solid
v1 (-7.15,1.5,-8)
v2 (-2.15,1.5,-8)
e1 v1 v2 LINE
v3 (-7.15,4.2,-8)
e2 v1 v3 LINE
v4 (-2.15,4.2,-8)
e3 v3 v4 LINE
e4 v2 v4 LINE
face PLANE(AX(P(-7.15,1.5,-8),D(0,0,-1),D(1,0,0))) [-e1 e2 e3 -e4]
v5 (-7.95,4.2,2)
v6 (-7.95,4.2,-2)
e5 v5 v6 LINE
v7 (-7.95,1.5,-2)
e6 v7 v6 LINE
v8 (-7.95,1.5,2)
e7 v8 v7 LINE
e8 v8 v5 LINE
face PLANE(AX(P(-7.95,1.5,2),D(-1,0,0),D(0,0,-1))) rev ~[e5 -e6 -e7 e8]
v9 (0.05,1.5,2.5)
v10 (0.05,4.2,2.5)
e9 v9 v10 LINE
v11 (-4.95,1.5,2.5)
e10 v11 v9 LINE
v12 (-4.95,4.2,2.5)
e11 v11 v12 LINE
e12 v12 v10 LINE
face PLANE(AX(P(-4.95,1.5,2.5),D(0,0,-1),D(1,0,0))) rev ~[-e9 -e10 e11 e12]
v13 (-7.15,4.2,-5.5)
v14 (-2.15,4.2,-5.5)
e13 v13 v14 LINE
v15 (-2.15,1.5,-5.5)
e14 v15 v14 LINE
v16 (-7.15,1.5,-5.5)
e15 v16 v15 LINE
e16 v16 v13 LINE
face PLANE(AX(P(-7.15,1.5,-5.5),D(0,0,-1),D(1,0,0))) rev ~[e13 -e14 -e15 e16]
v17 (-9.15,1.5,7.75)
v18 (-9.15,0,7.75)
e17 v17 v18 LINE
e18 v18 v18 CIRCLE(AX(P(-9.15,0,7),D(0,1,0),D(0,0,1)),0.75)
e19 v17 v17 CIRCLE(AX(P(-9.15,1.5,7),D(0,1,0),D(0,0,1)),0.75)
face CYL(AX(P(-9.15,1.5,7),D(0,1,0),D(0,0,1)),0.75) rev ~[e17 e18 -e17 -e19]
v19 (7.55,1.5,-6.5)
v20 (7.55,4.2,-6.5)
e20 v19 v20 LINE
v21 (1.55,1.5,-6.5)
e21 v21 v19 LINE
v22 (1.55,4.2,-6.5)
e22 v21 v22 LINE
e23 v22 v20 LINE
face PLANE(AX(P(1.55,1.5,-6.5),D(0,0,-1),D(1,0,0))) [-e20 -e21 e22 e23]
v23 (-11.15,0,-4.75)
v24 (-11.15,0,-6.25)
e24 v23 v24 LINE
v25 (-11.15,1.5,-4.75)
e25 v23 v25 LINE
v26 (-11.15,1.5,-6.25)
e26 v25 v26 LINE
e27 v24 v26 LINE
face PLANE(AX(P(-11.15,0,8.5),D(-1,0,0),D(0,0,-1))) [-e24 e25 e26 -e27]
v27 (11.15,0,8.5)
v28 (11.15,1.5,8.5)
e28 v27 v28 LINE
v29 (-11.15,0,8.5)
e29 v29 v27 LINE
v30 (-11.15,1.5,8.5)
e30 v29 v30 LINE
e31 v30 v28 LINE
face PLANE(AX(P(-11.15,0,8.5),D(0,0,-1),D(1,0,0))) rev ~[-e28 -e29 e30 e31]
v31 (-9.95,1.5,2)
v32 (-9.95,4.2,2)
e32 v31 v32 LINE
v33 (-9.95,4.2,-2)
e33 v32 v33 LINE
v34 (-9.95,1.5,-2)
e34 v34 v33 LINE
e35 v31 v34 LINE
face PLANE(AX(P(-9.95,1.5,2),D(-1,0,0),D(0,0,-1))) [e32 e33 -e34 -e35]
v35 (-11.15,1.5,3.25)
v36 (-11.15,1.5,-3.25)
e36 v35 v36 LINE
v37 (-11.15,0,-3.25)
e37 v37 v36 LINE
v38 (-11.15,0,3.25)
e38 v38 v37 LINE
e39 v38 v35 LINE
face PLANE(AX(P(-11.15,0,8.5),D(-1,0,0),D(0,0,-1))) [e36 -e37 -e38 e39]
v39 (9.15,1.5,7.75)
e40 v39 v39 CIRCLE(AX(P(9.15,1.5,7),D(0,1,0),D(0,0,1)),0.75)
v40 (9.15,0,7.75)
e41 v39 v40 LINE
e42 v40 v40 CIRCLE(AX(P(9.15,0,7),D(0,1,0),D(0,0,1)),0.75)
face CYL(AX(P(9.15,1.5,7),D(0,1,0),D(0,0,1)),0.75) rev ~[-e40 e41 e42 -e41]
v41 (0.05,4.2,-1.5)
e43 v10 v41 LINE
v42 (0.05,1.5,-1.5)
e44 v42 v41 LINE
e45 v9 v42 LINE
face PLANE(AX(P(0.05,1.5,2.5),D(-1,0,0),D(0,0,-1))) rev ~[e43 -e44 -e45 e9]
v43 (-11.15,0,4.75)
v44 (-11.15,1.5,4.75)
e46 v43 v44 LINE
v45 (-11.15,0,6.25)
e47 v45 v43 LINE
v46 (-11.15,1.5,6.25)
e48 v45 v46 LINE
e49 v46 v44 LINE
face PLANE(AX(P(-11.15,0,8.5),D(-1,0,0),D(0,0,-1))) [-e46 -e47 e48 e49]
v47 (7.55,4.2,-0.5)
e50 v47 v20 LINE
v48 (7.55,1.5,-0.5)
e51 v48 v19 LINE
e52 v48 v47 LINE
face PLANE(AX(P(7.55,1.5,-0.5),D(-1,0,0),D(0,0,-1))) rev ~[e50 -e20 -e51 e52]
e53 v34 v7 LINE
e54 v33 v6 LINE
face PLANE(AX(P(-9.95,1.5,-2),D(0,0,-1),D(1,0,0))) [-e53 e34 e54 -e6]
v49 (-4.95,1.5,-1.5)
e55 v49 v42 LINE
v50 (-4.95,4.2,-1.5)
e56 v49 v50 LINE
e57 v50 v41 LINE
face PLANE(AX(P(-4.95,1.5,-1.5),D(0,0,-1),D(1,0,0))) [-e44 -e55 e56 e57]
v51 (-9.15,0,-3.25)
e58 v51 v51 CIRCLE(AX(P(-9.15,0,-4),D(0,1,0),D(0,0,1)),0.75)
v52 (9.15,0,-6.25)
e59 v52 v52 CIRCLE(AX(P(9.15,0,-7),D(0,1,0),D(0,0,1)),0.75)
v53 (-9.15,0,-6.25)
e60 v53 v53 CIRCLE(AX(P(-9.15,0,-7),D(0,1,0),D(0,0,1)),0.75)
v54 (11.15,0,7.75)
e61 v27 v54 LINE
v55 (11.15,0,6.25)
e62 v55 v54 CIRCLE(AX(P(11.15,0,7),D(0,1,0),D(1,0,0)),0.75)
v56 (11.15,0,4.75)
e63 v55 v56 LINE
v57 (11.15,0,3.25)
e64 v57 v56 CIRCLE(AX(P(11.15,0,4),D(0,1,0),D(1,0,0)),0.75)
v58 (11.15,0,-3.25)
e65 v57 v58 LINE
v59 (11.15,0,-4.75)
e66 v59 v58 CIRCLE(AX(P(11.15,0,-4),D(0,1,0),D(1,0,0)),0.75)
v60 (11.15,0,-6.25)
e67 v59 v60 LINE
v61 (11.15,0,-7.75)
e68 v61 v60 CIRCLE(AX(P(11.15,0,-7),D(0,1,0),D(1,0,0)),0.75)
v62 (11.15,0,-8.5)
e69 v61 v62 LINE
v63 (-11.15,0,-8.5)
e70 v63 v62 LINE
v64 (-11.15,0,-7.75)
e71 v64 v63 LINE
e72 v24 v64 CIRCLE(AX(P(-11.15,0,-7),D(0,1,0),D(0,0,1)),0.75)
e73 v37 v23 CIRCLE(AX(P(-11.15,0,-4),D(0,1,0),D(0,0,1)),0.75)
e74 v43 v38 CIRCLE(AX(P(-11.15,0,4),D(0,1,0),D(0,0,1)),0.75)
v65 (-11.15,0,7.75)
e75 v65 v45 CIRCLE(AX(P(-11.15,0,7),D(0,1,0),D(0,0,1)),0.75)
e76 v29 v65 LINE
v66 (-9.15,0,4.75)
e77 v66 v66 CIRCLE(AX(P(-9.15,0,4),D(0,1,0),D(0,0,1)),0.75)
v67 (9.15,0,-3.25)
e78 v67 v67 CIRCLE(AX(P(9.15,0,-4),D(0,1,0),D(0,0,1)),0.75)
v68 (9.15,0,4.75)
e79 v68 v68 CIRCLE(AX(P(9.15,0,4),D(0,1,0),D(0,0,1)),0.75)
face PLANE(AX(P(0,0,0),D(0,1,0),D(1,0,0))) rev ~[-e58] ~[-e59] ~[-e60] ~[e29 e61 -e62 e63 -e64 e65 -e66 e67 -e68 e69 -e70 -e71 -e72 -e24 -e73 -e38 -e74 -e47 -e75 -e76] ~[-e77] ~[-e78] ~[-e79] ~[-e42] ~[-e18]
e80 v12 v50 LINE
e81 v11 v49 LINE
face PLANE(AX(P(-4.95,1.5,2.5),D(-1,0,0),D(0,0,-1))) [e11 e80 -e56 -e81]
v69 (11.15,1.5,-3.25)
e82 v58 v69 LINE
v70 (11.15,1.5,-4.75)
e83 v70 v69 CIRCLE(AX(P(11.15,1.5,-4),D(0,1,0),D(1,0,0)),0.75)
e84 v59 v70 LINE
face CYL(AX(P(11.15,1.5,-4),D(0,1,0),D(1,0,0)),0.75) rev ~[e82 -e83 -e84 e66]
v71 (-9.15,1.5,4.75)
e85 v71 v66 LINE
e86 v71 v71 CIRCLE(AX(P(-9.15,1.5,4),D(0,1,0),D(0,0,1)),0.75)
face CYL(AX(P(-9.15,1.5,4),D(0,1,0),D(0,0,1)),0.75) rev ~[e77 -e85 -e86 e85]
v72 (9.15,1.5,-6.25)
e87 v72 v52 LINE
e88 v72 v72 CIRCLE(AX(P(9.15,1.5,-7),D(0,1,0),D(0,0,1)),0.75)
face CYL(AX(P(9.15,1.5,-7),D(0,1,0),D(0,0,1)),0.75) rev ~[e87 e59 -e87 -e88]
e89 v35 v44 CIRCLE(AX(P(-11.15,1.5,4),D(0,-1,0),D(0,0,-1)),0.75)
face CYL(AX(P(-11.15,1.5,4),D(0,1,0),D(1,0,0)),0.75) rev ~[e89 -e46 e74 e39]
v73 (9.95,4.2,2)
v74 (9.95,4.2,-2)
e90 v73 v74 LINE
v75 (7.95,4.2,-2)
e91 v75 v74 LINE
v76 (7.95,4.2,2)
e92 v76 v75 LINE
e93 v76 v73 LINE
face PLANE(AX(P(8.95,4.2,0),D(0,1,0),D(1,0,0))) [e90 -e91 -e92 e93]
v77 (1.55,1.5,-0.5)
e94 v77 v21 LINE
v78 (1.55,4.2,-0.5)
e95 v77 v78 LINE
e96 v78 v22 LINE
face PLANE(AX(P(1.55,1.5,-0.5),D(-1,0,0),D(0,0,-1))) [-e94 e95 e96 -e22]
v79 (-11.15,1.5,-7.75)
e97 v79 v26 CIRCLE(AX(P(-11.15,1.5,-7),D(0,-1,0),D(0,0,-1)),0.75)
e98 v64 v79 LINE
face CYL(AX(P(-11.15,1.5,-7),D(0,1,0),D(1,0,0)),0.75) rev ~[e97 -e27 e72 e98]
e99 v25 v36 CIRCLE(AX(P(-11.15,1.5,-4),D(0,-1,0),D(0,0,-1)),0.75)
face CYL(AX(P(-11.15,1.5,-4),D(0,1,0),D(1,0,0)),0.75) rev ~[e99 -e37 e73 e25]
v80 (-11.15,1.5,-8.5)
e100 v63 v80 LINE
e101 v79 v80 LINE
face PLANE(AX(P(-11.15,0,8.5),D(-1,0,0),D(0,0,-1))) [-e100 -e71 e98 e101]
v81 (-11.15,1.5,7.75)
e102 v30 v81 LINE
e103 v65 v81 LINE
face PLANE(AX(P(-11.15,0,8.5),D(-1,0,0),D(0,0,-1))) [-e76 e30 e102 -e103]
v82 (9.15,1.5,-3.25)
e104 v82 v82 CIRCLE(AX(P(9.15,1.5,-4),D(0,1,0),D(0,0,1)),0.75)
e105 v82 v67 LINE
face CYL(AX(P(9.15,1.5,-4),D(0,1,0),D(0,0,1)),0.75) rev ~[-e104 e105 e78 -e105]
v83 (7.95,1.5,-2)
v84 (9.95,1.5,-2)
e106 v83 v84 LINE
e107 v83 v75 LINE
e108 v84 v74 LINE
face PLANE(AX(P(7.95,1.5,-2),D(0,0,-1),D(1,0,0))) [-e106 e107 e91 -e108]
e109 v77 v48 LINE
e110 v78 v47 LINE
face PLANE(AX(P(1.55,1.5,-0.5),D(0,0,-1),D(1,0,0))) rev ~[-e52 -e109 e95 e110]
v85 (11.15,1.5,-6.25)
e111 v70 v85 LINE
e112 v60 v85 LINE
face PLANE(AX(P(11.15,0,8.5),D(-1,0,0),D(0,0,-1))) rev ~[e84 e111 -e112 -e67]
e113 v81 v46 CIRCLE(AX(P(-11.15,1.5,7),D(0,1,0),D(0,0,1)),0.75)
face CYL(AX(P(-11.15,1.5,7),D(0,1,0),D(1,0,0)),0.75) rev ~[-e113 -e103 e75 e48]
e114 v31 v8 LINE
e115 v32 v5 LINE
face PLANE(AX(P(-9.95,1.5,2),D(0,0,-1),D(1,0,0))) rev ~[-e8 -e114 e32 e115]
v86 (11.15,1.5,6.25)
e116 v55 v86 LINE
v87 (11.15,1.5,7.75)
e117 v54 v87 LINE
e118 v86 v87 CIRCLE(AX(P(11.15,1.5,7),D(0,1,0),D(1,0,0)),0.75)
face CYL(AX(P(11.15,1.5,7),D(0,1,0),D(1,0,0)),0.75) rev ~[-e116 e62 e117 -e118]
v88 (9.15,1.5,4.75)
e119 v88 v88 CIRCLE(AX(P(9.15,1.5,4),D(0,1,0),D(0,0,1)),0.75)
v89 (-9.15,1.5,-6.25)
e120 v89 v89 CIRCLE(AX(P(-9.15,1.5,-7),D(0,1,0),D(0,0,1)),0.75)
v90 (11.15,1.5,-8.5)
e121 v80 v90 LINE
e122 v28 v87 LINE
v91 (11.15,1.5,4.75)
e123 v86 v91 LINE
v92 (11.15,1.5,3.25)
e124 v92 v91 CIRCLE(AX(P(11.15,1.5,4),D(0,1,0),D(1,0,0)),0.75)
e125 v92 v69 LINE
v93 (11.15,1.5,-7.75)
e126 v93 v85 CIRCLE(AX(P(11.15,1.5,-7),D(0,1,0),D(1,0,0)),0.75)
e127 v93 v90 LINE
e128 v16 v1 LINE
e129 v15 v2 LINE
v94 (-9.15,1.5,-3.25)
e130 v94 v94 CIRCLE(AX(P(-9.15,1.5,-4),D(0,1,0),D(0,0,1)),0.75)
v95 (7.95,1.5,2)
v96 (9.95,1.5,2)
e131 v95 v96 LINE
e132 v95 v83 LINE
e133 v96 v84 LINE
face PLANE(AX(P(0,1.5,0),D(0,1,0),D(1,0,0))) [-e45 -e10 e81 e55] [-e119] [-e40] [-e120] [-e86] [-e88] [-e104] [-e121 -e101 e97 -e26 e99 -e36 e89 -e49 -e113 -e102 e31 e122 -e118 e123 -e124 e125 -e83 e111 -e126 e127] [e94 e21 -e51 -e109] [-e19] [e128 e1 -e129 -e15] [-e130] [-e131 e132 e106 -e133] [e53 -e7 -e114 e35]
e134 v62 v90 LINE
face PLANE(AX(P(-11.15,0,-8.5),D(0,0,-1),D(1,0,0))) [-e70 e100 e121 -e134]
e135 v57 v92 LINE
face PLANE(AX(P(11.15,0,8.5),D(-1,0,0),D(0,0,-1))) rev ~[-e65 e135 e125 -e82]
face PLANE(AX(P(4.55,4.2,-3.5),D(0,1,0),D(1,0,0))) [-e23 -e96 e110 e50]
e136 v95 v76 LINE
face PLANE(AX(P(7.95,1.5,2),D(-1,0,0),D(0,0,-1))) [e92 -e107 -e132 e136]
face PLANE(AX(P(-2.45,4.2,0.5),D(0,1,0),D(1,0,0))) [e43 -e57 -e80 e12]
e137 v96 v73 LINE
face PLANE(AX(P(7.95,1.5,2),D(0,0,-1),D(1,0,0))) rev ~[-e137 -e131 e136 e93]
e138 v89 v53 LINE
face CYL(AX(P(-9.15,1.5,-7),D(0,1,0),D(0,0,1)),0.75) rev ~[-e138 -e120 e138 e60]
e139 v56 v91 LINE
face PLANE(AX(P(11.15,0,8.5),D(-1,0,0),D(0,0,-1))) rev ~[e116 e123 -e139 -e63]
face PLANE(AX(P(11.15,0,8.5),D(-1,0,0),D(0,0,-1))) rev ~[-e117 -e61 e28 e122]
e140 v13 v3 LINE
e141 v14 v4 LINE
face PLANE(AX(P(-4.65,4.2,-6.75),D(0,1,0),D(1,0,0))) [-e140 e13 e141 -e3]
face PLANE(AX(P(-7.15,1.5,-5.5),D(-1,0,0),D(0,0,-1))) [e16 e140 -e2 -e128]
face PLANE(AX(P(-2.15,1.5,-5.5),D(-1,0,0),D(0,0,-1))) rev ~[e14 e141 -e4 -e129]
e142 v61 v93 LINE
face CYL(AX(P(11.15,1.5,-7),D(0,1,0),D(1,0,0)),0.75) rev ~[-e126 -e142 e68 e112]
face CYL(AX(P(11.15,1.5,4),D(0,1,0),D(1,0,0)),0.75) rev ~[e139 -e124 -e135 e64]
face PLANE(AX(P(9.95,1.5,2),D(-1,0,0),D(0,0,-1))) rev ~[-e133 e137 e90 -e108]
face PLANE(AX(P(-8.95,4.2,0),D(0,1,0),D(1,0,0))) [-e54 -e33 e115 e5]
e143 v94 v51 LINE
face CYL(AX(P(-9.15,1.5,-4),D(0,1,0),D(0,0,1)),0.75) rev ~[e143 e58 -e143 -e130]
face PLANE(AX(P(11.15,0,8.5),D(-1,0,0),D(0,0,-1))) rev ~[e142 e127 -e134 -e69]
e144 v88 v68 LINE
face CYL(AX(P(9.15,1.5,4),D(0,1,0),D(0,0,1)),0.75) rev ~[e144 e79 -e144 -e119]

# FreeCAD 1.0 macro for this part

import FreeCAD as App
import Part
import Sketcher
Q = App.Units.Quantity


def add_polygon(sketch, points):
    """Adds a closed chain of lines whose ends are joined by coincident constraints."""
    first, n = sketch.GeometryCount, len(points)
    for a, b in zip(points, points[1:] + points[:1]):
        sketch.addGeometry(Part.LineSegment(App.Vector(*a, 0), App.Vector(*b, 0)), False)
    for i in range(n):
        sketch.addConstraint(Sketcher.Constraint("Coincident", first + i, 2, first + (i + 1) % n, 1))

doc = App.newDocument("Part")
params = doc.addObject("Spreadsheet::Sheet", "Params")
for row, (alias, value) in enumerate([
    ("sketch1_height", "17 mm"),
    ("sketch1_width", "22.3 mm"),
    ("pad1_length", "1.5 mm"),
    ("sketch2_width", "6 mm"),
    ("sketch2_width2", "5 mm"),
    ("sketch2_width3", "2 mm"),
    ("sketch2_height", "4 mm"),
    ("sketch2_height2", "2.5 mm"),
    ("pad2_length", "2.7 mm"),
    ("sketch3_diameter", "1.5 mm"),
], start=1):
    params.set(f"A{row}", alias)
    params.set(f"B{row}", "=" + value)
    params.setAlias(f"B{row}", alias)

body = doc.addObject("PartDesign::Body", "Body")

sketch1 = doc.addObject("Sketcher::SketchObject", "Sketch")
body.addObject(sketch1)
sketch1.AttachmentSupport = (doc.XZ_Plane, [""])
sketch1.MapMode = "FlatFace"
add_polygon(sketch1, [(-11.15, -8.5), (-11.15, 8.5), (11.15, 8.5), (11.15, -8.5)])
sketch1.addConstraint([
    Sketcher.Constraint("Vertical", 0),
    Sketcher.Constraint("Horizontal", 1),
    Sketcher.Constraint("Vertical", 2),
    Sketcher.Constraint("Horizontal", 3),
    Sketcher.Constraint("Symmetric", 0, 2, 2, 2, -1, 1),
    Sketcher.Constraint("DistanceY", 0, 1, 0, 2, Q("17 mm")),
    Sketcher.Constraint("DistanceX", 1, 1, 1, 2, Q("22.3 mm")),
])
sketch1.setExpression("Constraints[9]", "Params.sketch1_height")
sketch1.setExpression("Constraints[10]", "Params.sketch1_width")
pad1 = doc.addObject("PartDesign::Pad", "Pad")
body.addObject(pad1)
pad1.Profile = sketch1
pad1.setExpression("Length", "Params.pad1_length")
pad1.Reversed = True

sketch2 = doc.addObject("Sketcher::SketchObject", "Sketch001")
body.addObject(sketch2)
sketch2.AttachmentSupport = (doc.XZ_Plane, [""])
sketch2.MapMode = "FlatFace"
sketch2.AttachmentOffset = App.Placement(App.Vector(0, 0, -1.5), App.Rotation())
add_polygon(sketch2, [(1.55, -6.5), (1.55, -0.5), (7.55, -0.5), (7.55, -6.5)])
add_polygon(sketch2, [(-7.15, -8), (-7.15, -5.5), (-2.15, -5.5), (-2.15, -8)])
add_polygon(sketch2, [(-9.95, -2), (-9.95, 2), (-7.95, 2), (-7.95, -2)])
add_polygon(sketch2, [(7.95, -2), (7.95, 2), (9.95, 2), (9.95, -2)])
add_polygon(sketch2, [(-4.95, -1.5), (-4.95, 2.5), (0.05, 2.5), (0.05, -1.5)])
sketch2.addConstraint([
    Sketcher.Constraint("Vertical", 0),
    Sketcher.Constraint("Horizontal", 1),
    Sketcher.Constraint("Vertical", 2),
    Sketcher.Constraint("Horizontal", 3),
    Sketcher.Constraint("Vertical", 4),
    Sketcher.Constraint("Horizontal", 5),
    Sketcher.Constraint("Vertical", 6),
    Sketcher.Constraint("Horizontal", 7),
    Sketcher.Constraint("Vertical", 8),
    Sketcher.Constraint("Horizontal", 9),
    Sketcher.Constraint("Vertical", 10),
    Sketcher.Constraint("Horizontal", 11),
    Sketcher.Constraint("Vertical", 12),
    Sketcher.Constraint("Horizontal", 13),
    Sketcher.Constraint("Vertical", 14),
    Sketcher.Constraint("Horizontal", 15),
    Sketcher.Constraint("Vertical", 16),
    Sketcher.Constraint("Horizontal", 17),
    Sketcher.Constraint("Vertical", 18),
    Sketcher.Constraint("Horizontal", 19),
    Sketcher.Constraint("Symmetric", 10, 2, 12, 2, -1, 1),
    Sketcher.Constraint("Symmetric", 8, 2, 14, 2, -1, 1),
    Sketcher.Constraint("Horizontal", 9, 2, 12, 2),
    Sketcher.Constraint("Equal", 7, 17),
    Sketcher.Constraint("Equal", 3, 0),
    Sketcher.Constraint("Equal", 14, 16),
    Sketcher.Constraint("DistanceX", 1, 1, 1, 2, Q("6 mm")),
    Sketcher.Constraint("DistanceX", 5, 1, 5, 2, Q("5 mm")),
    Sketcher.Constraint("DistanceX", 9, 1, 9, 2, Q("2 mm")),
    Sketcher.Constraint("DistanceY", 8, 1, 8, 2, Q("4 mm")),
    Sketcher.Constraint("DistanceY", 4, 1, 4, 2, Q("2.5 mm")),
    Sketcher.Constraint("DistanceY", 6, 2, -1, 1, Q("8 mm")),
    Sketcher.Constraint("DistanceY", 3, 2, 4, 2, Q("1 mm")),
    Sketcher.Constraint("DistanceX", 9, 2, 16, 2, Q("3 mm")),
    Sketcher.Constraint("DistanceY", 0, 2, 16, 2, Q("3 mm")),
    Sketcher.Constraint("DistanceX", 4, 2, 3, 2, Q("8.7 mm")),
    Sketcher.Constraint("DistanceX", 8, 2, 4, 2, Q("2.8 mm")),
    Sketcher.Constraint("DistanceX", 1, 2, 12, 2, Q("0.4 mm")),
])
sketch2.setExpression("Constraints[46]", "Params.sketch2_width")
sketch2.setExpression("Constraints[47]", "Params.sketch2_width2")
sketch2.setExpression("Constraints[48]", "Params.sketch2_width3")
sketch2.setExpression("Constraints[49]", "Params.sketch2_height")
sketch2.setExpression("Constraints[50]", "Params.sketch2_height2")
pad2 = doc.addObject("PartDesign::Pad", "Pad001")
body.addObject(pad2)
pad2.Profile = sketch2
pad2.setExpression("Length", "Params.pad2_length")
pad2.Reversed = True

sketch3 = doc.addObject("Sketcher::SketchObject", "Sketch002")
body.addObject(sketch3)
sketch3.AttachmentSupport = (doc.XZ_Plane, [""])
sketch3.MapMode = "FlatFace"
sketch3.AttachmentOffset = App.Placement(App.Vector(0, 0, -1.5), App.Rotation())
sketch3.addGeometry([
    Part.Circle(App.Vector(-11.15, -7, 0), App.Vector(0, 0, 1), 0.75),
    Part.Circle(App.Vector(-11.15, -4, 0), App.Vector(0, 0, 1), 0.75),
    Part.Circle(App.Vector(-9.15, -7, 0), App.Vector(0, 0, 1), 0.75),
    Part.Circle(App.Vector(-9.15, -4, 0), App.Vector(0, 0, 1), 0.75),
    Part.Circle(App.Vector(9.15, -7, 0), App.Vector(0, 0, 1), 0.75),
    Part.Circle(App.Vector(11.15, -7, 0), App.Vector(0, 0, 1), 0.75),
    Part.Circle(App.Vector(9.15, -4, 0), App.Vector(0, 0, 1), 0.75),
    Part.Circle(App.Vector(11.15, -4, 0), App.Vector(0, 0, 1), 0.75),
    Part.Circle(App.Vector(-11.15, 4, 0), App.Vector(0, 0, 1), 0.75),
    Part.Circle(App.Vector(-9.15, 4, 0), App.Vector(0, 0, 1), 0.75),
    Part.Circle(App.Vector(-9.15, 7, 0), App.Vector(0, 0, 1), 0.75),
    Part.Circle(App.Vector(-11.15, 7, 0), App.Vector(0, 0, 1), 0.75),
    Part.Circle(App.Vector(11.15, 4, 0), App.Vector(0, 0, 1), 0.75),
    Part.Circle(App.Vector(9.15, 4, 0), App.Vector(0, 0, 1), 0.75),
    Part.Circle(App.Vector(9.15, 7, 0), App.Vector(0, 0, 1), 0.75),
    Part.Circle(App.Vector(11.15, 7, 0), App.Vector(0, 0, 1), 0.75),
], False)
sketch3.addConstraint([
    Sketcher.Constraint("Equal", 0, 1),
    Sketcher.Constraint("Equal", 1, 2),
    Sketcher.Constraint("Equal", 2, 3),
    Sketcher.Constraint("Equal", 3, 4),
    Sketcher.Constraint("Equal", 4, 5),
    Sketcher.Constraint("Equal", 5, 6),
    Sketcher.Constraint("Equal", 6, 7),
    Sketcher.Constraint("Equal", 7, 8),
    Sketcher.Constraint("Equal", 8, 9),
    Sketcher.Constraint("Equal", 9, 10),
    Sketcher.Constraint("Equal", 10, 11),
    Sketcher.Constraint("Equal", 11, 12),
    Sketcher.Constraint("Equal", 12, 13),
    Sketcher.Constraint("Equal", 13, 14),
    Sketcher.Constraint("Equal", 14, 15),
    Sketcher.Constraint("Symmetric", 7, 3, 8, 3, -1, 1),
    Sketcher.Constraint("Symmetric", 6, 3, 9, 3, -1, 1),
    Sketcher.Constraint("Symmetric", 4, 3, 10, 3, -1, 1),
    Sketcher.Constraint("Symmetric", 5, 3, 11, 3, -1, 1),
    Sketcher.Constraint("Symmetric", 1, 3, 12, 3, -1, 1),
    Sketcher.Constraint("Symmetric", 3, 3, 13, 3, -1, 1),
    Sketcher.Constraint("Symmetric", 2, 3, 14, 3, -1, 1),
    Sketcher.Constraint("Symmetric", 0, 3, 15, 3, -1, 1),
    Sketcher.Constraint("Symmetric", 2, 3, 4, 3, -2),
    Sketcher.Constraint("Symmetric", 0, 3, 5, 3, -2),
    Sketcher.Constraint("Symmetric", 3, 3, 6, 3, -2),
    Sketcher.Constraint("Symmetric", 1, 3, 7, 3, -2),
    Sketcher.Constraint("Horizontal", 0, 3, 2, 3),
    Sketcher.Constraint("Horizontal", 1, 3, 3, 3),
    Sketcher.Constraint("Vertical", 0, 3, 1, 3),
    Sketcher.Constraint("Vertical", 2, 3, 3, 3),
    Sketcher.Constraint("Diameter", 0, Q("1.5 mm")),
    Sketcher.Constraint("DistanceY", 0, 3, -1, 1, Q("7 mm")),
    Sketcher.Constraint("DistanceY", 1, 3, -1, 1, Q("4 mm")),
    Sketcher.Constraint("DistanceX", 0, 3, 2, 3, Q("2 mm")),
    Sketcher.Constraint("DistanceX", 2, 3, 4, 3, Q("18.3 mm")),
])
sketch3.setExpression("Constraints[31]", "Params.sketch3_diameter")
pocket1 = doc.addObject("PartDesign::Pocket", "Pocket")
body.addObject(pocket1)
pocket1.Profile = sketch3
pocket1.Type = "ThroughAll"
pocket1.Reversed = True

doc.recompute()
